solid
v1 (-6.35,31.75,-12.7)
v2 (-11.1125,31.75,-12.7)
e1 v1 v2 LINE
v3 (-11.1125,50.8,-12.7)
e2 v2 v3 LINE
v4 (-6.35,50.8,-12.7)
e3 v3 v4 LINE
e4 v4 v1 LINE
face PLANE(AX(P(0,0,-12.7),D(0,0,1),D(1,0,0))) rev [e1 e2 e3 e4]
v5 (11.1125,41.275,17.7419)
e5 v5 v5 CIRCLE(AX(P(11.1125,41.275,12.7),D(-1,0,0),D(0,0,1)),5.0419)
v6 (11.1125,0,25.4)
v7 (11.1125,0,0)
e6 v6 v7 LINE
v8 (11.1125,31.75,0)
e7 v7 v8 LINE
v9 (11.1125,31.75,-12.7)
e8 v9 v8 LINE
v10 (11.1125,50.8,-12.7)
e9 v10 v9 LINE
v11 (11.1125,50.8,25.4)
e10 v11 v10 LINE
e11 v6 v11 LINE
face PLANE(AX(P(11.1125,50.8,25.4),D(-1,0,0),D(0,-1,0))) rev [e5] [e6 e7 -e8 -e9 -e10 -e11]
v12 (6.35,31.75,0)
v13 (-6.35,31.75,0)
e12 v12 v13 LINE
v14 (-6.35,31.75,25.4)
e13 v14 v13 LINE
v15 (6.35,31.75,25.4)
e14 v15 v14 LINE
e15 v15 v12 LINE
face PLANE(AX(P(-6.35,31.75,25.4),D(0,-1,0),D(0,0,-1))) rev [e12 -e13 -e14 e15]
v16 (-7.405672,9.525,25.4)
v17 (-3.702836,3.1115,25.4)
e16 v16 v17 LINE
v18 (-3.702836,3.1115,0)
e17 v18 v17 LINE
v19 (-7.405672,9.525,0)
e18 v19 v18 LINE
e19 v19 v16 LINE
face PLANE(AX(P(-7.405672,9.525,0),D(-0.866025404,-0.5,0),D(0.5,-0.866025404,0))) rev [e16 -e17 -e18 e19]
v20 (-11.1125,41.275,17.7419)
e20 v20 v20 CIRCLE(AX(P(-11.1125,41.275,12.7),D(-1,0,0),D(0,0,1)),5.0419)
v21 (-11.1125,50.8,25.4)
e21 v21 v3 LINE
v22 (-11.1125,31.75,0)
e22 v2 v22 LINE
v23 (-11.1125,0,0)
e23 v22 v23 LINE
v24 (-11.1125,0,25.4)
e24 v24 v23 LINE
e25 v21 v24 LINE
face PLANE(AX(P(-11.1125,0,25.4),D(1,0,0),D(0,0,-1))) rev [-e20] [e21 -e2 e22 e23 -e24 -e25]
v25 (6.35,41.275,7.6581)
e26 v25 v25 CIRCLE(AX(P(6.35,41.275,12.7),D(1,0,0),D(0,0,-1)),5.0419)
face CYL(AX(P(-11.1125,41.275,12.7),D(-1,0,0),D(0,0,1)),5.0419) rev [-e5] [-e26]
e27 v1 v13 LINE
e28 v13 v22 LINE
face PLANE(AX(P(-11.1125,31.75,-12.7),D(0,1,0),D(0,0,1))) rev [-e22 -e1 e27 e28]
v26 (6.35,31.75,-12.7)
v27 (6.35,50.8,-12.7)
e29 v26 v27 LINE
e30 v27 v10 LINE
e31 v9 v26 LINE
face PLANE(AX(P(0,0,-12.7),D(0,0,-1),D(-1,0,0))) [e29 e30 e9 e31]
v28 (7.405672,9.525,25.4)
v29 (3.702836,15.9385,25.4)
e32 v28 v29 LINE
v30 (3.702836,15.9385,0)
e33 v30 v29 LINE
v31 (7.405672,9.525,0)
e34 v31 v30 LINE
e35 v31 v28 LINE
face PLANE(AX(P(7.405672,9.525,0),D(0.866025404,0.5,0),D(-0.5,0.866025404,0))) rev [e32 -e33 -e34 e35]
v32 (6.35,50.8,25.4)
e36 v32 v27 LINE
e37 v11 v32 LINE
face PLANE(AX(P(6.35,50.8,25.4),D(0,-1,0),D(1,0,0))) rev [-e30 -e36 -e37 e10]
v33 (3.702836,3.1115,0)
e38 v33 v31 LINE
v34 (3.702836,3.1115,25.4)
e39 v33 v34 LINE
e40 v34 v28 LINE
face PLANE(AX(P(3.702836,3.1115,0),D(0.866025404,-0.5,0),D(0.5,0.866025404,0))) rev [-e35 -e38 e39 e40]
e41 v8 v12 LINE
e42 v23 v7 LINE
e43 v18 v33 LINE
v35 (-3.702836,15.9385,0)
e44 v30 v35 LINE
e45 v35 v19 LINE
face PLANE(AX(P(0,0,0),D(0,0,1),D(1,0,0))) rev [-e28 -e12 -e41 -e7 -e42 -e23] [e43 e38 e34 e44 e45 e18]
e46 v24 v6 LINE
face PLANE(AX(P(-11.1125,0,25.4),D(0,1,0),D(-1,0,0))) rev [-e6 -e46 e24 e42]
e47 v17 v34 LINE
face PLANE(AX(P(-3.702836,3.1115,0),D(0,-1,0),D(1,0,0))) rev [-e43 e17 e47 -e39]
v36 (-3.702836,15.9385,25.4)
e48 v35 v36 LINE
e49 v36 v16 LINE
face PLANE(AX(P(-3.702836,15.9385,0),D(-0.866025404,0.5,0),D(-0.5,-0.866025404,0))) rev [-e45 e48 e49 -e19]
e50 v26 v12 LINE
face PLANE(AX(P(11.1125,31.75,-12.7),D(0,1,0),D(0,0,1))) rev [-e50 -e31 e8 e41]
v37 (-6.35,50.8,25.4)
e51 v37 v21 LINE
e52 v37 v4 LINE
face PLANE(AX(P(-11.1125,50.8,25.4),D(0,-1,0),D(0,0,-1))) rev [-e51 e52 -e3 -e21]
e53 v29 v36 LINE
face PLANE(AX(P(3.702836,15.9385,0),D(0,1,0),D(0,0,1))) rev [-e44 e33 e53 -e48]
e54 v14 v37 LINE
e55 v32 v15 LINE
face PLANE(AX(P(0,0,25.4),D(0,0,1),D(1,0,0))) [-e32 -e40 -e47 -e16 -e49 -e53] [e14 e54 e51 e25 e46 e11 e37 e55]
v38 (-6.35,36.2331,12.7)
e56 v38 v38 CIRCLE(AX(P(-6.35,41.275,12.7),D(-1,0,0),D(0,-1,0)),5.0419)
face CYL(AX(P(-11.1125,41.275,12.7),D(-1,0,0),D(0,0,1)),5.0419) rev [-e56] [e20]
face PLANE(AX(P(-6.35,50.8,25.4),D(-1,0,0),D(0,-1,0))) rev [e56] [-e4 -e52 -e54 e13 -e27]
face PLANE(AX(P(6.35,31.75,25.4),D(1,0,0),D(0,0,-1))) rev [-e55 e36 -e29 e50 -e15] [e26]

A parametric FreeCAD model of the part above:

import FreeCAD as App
import Part
import Sketcher

V = App.Vector
Q = App.Units.Quantity


def add_polygon(sketch, points):
    """Adds a closed chain of lines whose ends are joined by coincident constraints."""
    first, n = sketch.GeometryCount, len(points)
    for a, b in zip(points, points[1:] + points[:1]):
        sketch.addGeometry(Part.LineSegment(App.Vector(*a, 0), App.Vector(*b, 0)), False)
    for i in range(n):
        sketch.addConstraint(Sketcher.Constraint("Coincident", first + i, 2, first + (i + 1) % n, 1))

doc = App.newDocument("Part")
body = doc.addObject("PartDesign::Body", "Body")

# Sketch on XY plane
sketch1 = body.newObject("Sketcher::SketchObject", "Sketch")
sketch1.AttachmentSupport = (doc.getObject("XY_Plane"), [""])
sketch1.MapMode = "FlatFace"
add_polygon(sketch1, [(-11.1125, 0), (11.1125, 0), (11.1125, 50.8), (6.35, 50.8), (6.35, 31.75), (-6.35, 31.75), (-6.35, 50.8), (-11.1125, 50.8)])  # lines 0-7
sketch1.addConstraint(Sketcher.Constraint("Horizontal", 0))
sketch1.addConstraint(Sketcher.Constraint("Vertical", 1))
sketch1.addConstraint(Sketcher.Constraint("Horizontal", 2))
sketch1.addConstraint(Sketcher.Constraint("Vertical", 3))
sketch1.addConstraint(Sketcher.Constraint("Horizontal", 4))
sketch1.addConstraint(Sketcher.Constraint("Vertical", 5))
sketch1.addConstraint(Sketcher.Constraint("Horizontal", 6))
sketch1.addConstraint(Sketcher.Constraint("Vertical", 7))
sketch1.addConstraint(Sketcher.Constraint("Symmetric", 0, 2, 7, 2, -1, 1))
sketch1.addConstraint(Sketcher.Constraint("Symmetric", 2, 2, 5, 2, -2))
sketch1.addConstraint(Sketcher.Constraint("DistanceY", 1, 1, 1, 2, Q("2 in")))
sketch1.addConstraint(Sketcher.Constraint("DistanceX", 4, 2, 4, 1, Q("0.5 in")))
sketch1.addConstraint(Sketcher.Constraint("DistanceY", 3, 2, 3, 1, Q("0.75 in")))
sketch1.addConstraint(Sketcher.Constraint("DistanceX", 0, 1, 0, 2, Q("0.875 in")))
pad1 = body.newObject("PartDesign::Pad", "Pad")
pad1.Profile = sketch1
pad1.Length = Q("1 in")

# Sketch on XY plane
sketch2 = body.newObject("Sketcher::SketchObject", "Sketch001")
sketch2.AttachmentSupport = (doc.getObject("XY_Plane"), [""])
sketch2.MapMode = "FlatFace"
sketch2.AttachmentOffset = App.Placement(V(0, 0, 1 * 25.4), App.Rotation())
add_polygon(sketch2, [(3.702836, 15.9385), (-3.702836, 15.9385), (-7.405672, 9.525), (-3.702836, 3.1115), (3.702836, 3.1115), (7.405672, 9.525)])  # lines 0-5
sketch2.addConstraint(Sketcher.Constraint("Horizontal", 0))
sketch2.addConstraint(Sketcher.Constraint("Horizontal", 3))
sketch2.addConstraint(Sketcher.Constraint("Symmetric", 1, 2, 4, 2, -2))
sketch2.addConstraint(Sketcher.Constraint("Parallel", 1, 4))
sketch2.addConstraint(Sketcher.Constraint("Parallel", 2, 5))
sketch2.addConstraint(Sketcher.Constraint("Vertical", 0, 2, 2, 2))
sketch2.addConstraint(Sketcher.Constraint("Vertical", 3, 2, 5, 2))
sketch2.addConstraint(Sketcher.Constraint("Angle", 1, Q("-120 deg")))
sketch2.addConstraint(Sketcher.Constraint("DistanceY", -1, 1, 1, 2, Q("0.375 in")))
sketch2.addConstraint(Sketcher.Constraint("DistanceY", 2, 2, 0, 2, Q("0.505 in")))
sketch2.addConstraint(Sketcher.Constraint("DistanceX", 0, 2, 0, 1, 7.405672))
pocket1 = body.newObject("PartDesign::Pocket", "Pocket")
pocket1.Profile = sketch2
pocket1.Type = "ThroughAll"

# Sketch on YZ plane
sketch3 = body.newObject("Sketcher::SketchObject", "Sketch002")
sketch3.AttachmentSupport = (doc.getObject("YZ_Plane"), [""])
sketch3.MapMode = "FlatFace"
sketch3.AttachmentOffset = App.Placement(V(0, 0, -0.4375 * 25.4), App.Rotation())
sketch3.addGeometry(Part.Circle(V(41.275, 12.7, 0), V(0, 0, 1), 5.0419), False)
sketch3.addConstraint(Sketcher.Constraint("Diameter", 0, Q("0.397 in")))
sketch3.addConstraint(Sketcher.Constraint("DistanceY", -1, 1, 0, 3, Q("0.5 in")))
sketch3.addConstraint(Sketcher.Constraint("DistanceX", -1, 1, 0, 3, Q("1.625 in")))
doc.recompute()
hole = body.newObject("PartDesign::Hole", "Hole")
hole.Profile = sketch3
hole.ThreadType = "None"
hole.Diameter = Q("0.397 in")
hole.DepthType = "ThroughAll"
hole.Reversed = True

# Sketch on XY plane
sketch4 = body.newObject("Sketcher::SketchObject", "Sketch003")
sketch4.AttachmentSupport = (doc.getObject("XY_Plane"), [""])
sketch4.MapMode = "FlatFace"
add_polygon(sketch4, [(11.1125, 50.8), (11.1125, 31.75), (6.35, 31.75), (6.35, 50.8)])  # lines 0-3
add_polygon(sketch4, [(-6.35, 50.8), (-6.35, 31.75), (-11.1125, 31.75), (-11.1125, 50.8)])  # lines 4-7
sketch4.addConstraint(Sketcher.Constraint("Vertical", 0))
sketch4.addConstraint(Sketcher.Constraint("Horizontal", 1))
sketch4.addConstraint(Sketcher.Constraint("Vertical", 2))
sketch4.addConstraint(Sketcher.Constraint("Horizontal", 3))
sketch4.addConstraint(Sketcher.Constraint("Vertical", 4))
sketch4.addConstraint(Sketcher.Constraint("Horizontal", 5))
sketch4.addConstraint(Sketcher.Constraint("Vertical", 6))
sketch4.addConstraint(Sketcher.Constraint("Horizontal", 7))
sketch4.addConstraint(Sketcher.Constraint("Symmetric", 1, 2, 4, 2, -2))
sketch4.addConstraint(Sketcher.Constraint("Symmetric", 3, 2, 6, 2, -2))
sketch4.addConstraint(Sketcher.Constraint("DistanceY", -1, 1, 2, 2, Q("2 in")))
sketch4.addConstraint(Sketcher.Constraint("DistanceY", 0, 2, 0, 1, Q("0.75 in")))
sketch4.addConstraint(Sketcher.Constraint("DistanceX", 4, 2, 1, 2, Q("0.5 in")))
sketch4.addConstraint(Sketcher.Constraint("DistanceX", 1, 2, 1, 1, Q("0.1875 in")))
pad2 = body.newObject("PartDesign::Pad", "Pad001")
pad2.Profile = sketch4
pad2.Length = Q("0.5 in")
pad2.Reversed = True

doc.recompute()
